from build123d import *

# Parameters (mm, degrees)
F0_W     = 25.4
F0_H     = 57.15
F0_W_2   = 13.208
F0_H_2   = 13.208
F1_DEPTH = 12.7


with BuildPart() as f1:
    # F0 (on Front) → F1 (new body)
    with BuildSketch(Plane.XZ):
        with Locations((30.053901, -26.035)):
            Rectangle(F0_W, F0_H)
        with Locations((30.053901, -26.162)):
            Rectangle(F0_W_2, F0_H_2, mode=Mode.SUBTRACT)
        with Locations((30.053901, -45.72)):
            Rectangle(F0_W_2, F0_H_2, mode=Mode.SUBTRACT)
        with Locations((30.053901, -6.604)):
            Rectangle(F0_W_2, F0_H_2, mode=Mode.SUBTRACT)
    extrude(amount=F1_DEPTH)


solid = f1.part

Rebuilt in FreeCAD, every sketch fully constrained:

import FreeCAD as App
import Part
import Sketcher
Q = App.Units.Quantity


def add_polygon(sketch, points):
    """Adds a closed chain of lines whose ends are joined by coincident constraints."""
    first, n = sketch.GeometryCount, len(points)
    for a, b in zip(points, points[1:] + points[:1]):
        sketch.addGeometry(Part.LineSegment(App.Vector(*a, 0), App.Vector(*b, 0)), False)
    for i in range(n):
        sketch.addConstraint(Sketcher.Constraint("Coincident", first + i, 2, first + (i + 1) % n, 1))

doc = App.newDocument("Part")
body = doc.addObject("PartDesign::Body", "Body")

# Sketch on XZ plane
sketch1 = body.newObject("Sketcher::SketchObject", "Sketch")
sketch1.AttachmentSupport = (doc.getObject("XZ_Plane"), [""])
sketch1.MapMode = "FlatFace"
add_polygon(sketch1, [(17, 3), (17, -55), (43, -55), (43, 3)])  # lines 0-3
add_polygon(sketch1, [(37, -52), (23, -52), (23, -39), (37, -39)])  # lines 4-7
add_polygon(sketch1, [(37, -33), (23, -33), (23, -20), (37, -20)])  # lines 8-11
add_polygon(sketch1, [(37, -13), (23, -13), (23, 0), (37, 0)])  # lines 12-15
sketch1.addConstraint([
    Sketcher.Constraint("Vertical", 0),
    Sketcher.Constraint("Horizontal", 1),
    Sketcher.Constraint("Vertical", 2),
    Sketcher.Constraint("Horizontal", 3),
    Sketcher.Constraint("Horizontal", 4),
    Sketcher.Constraint("Vertical", 5),
    Sketcher.Constraint("Horizontal", 6),
    Sketcher.Constraint("Vertical", 7),
    Sketcher.Constraint("Horizontal", 8),
    Sketcher.Constraint("Vertical", 9),
    Sketcher.Constraint("Horizontal", 10),
    Sketcher.Constraint("Vertical", 11),
    Sketcher.Constraint("Horizontal", 12),
    Sketcher.Constraint("Vertical", 13),
    Sketcher.Constraint("Horizontal", 14),
    Sketcher.Constraint("Vertical", 15),
    Sketcher.Constraint("PointOnObject", 13, 2, -1),
    Sketcher.Constraint("Vertical", 5, 2, 8, 2),
    Sketcher.Constraint("Vertical", 7, 2, 10, 2),
    Sketcher.Constraint("Vertical", 9, 2, 12, 2),
    Sketcher.Constraint("Vertical", 11, 2, 14, 2),
    Sketcher.Constraint("Equal", 14, 5),
    Sketcher.Constraint("Equal", 7, 9),
    Sketcher.Constraint("Equal", 11, 13),
    Sketcher.Constraint("DistanceX", 1, 1, 1, 2, Q("1 in")),
    Sketcher.Constraint("DistanceX", 4, 2, 4, 1, Q("0.52 in")),
    Sketcher.Constraint("DistanceY", 0, 2, 0, 1, Q("2.25 in")),
    Sketcher.Constraint("DistanceY", -1, 1, 2, 2, Q("0.1 in")),
    Sketcher.Constraint("DistanceY", 4, 2, -1, 1, Q("2.06 in")),
    Sketcher.Constraint("DistanceY", 8, 2, -1, 1, Q("1.29 in")),
    Sketcher.Constraint("DistanceX", 0, 2, 4, 2, Q("0.24 in")),
    Sketcher.Constraint("DistanceX", -1, 1, 0, 2, Q("17.353901 mm")),
])
pad1 = body.newObject("PartDesign::Pad", "Pad")
pad1.Profile = sketch1
pad1.Length = Q("0.5 in")

doc.recompute()
